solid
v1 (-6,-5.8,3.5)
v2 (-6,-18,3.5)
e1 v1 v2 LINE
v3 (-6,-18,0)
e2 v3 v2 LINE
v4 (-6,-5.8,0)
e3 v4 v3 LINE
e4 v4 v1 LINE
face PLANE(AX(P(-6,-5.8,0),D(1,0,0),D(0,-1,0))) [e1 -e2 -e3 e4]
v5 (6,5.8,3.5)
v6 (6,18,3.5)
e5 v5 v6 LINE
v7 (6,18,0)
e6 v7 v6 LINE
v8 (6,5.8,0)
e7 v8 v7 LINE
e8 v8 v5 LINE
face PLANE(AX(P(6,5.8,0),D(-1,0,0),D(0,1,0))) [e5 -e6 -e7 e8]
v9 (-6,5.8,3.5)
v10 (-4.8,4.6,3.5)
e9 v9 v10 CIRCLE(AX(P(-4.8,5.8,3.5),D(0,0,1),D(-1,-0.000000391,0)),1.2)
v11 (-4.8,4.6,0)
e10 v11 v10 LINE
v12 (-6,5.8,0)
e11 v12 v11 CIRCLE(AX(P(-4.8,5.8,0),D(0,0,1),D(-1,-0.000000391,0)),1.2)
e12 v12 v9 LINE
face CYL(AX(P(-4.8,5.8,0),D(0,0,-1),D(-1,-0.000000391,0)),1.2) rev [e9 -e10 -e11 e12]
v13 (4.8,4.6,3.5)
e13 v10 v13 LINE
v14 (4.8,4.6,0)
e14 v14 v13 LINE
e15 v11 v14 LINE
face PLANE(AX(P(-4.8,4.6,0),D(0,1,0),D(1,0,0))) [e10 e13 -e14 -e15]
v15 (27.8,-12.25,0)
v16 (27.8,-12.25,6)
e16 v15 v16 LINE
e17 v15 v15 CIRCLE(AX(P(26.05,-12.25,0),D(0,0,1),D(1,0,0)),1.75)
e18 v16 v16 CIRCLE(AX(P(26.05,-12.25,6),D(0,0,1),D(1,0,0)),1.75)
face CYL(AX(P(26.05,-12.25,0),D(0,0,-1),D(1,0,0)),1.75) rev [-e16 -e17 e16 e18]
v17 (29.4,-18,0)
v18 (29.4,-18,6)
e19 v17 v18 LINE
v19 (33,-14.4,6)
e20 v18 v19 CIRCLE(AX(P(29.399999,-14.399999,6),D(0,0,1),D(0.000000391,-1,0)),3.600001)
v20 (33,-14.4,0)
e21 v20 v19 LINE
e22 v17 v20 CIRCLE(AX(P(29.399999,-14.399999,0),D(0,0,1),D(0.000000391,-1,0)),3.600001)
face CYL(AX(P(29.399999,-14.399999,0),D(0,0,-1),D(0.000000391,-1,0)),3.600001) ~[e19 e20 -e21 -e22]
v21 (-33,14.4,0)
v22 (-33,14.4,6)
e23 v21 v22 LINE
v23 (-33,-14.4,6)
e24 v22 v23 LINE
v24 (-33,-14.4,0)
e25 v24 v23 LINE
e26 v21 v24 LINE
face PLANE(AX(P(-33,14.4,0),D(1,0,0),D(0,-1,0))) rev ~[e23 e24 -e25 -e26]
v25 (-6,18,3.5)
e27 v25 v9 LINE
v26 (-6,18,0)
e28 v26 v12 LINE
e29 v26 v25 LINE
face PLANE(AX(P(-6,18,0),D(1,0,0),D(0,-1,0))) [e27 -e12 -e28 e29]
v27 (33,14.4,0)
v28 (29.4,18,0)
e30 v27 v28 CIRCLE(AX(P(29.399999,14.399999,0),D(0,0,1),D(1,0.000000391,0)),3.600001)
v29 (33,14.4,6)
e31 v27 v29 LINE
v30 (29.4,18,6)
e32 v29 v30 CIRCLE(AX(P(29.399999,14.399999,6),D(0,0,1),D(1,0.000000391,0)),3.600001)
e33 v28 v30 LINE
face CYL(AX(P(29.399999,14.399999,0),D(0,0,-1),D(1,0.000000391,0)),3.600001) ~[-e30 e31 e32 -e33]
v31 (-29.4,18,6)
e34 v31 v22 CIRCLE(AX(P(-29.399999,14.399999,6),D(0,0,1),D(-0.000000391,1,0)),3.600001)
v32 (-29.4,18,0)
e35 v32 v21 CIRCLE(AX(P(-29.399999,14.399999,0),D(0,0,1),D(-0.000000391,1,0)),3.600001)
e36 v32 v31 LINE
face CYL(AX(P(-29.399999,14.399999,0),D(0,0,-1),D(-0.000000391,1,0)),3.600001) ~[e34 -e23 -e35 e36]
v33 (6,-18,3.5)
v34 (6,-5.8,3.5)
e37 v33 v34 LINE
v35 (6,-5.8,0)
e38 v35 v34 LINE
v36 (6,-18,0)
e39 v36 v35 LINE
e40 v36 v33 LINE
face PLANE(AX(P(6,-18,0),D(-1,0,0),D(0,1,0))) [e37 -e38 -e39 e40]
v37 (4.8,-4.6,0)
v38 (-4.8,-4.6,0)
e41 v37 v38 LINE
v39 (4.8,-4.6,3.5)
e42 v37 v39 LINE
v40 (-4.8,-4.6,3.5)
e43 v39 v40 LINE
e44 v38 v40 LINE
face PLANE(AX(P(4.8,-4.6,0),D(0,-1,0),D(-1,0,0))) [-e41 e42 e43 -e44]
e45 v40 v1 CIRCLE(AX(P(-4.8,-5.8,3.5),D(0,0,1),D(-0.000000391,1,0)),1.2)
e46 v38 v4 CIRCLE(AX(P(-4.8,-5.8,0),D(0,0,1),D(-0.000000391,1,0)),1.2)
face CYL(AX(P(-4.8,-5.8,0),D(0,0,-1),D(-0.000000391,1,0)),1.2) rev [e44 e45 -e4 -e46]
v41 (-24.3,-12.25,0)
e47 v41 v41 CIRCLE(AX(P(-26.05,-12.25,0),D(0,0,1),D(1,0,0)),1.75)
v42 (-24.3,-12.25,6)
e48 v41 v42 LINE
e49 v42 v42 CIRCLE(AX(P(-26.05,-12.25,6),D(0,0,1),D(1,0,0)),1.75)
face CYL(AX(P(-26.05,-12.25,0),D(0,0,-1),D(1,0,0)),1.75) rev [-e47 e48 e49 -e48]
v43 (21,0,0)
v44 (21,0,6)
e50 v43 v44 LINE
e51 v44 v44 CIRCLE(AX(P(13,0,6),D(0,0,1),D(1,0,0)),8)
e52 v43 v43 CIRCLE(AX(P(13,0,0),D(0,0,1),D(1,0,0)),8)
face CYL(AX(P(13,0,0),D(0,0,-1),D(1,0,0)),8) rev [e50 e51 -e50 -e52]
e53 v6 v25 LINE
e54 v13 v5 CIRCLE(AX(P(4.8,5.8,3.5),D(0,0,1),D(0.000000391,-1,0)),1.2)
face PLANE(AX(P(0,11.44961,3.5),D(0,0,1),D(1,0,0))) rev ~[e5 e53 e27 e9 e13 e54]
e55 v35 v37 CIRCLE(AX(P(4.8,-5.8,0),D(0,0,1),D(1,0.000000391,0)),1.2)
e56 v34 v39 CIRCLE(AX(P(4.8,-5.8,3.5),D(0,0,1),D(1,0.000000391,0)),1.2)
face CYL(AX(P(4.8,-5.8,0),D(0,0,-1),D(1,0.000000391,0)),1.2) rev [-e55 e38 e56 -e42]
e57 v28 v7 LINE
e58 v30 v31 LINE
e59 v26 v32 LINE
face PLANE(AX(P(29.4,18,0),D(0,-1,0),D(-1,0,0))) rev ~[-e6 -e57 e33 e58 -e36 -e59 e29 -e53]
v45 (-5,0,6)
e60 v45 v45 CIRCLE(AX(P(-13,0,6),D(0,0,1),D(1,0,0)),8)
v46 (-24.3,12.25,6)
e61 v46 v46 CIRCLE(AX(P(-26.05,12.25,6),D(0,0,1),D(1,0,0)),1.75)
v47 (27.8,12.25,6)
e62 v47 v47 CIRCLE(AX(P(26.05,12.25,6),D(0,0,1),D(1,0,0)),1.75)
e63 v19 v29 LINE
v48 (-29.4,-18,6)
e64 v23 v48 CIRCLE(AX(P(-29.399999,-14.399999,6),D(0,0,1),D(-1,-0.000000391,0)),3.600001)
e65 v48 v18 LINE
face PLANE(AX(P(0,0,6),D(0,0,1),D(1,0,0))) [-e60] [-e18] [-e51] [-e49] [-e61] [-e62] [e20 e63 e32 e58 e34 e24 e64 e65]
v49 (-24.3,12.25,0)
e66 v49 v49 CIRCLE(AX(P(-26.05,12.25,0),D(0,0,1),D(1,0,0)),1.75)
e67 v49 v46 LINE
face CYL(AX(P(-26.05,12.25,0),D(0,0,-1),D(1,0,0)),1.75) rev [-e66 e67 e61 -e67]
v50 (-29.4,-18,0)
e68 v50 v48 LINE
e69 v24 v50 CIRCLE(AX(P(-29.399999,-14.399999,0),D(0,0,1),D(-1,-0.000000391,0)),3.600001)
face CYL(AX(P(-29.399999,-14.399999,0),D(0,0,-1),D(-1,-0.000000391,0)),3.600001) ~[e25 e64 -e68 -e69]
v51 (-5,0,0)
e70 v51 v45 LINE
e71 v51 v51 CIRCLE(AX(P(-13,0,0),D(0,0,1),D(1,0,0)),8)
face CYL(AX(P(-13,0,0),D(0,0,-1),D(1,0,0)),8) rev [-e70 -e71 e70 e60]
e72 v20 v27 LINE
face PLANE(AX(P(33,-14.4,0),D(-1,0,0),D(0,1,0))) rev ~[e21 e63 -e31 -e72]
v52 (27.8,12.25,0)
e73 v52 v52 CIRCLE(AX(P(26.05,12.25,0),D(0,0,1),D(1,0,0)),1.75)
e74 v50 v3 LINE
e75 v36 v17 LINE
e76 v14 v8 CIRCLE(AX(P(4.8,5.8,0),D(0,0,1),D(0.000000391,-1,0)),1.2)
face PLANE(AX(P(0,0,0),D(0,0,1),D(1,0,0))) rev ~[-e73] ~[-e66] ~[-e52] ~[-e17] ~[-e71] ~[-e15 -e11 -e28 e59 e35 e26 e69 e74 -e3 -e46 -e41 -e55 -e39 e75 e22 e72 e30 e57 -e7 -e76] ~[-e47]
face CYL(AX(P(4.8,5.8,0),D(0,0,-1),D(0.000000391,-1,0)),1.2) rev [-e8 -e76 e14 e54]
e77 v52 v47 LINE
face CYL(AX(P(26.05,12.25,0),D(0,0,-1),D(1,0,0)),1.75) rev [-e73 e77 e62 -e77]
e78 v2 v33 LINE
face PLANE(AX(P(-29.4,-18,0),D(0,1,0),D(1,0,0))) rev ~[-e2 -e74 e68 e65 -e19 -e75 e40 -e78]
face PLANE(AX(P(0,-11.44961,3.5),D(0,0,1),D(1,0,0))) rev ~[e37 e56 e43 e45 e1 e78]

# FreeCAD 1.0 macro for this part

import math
import FreeCAD as App
import Part
import Sketcher
from FreeCAD import Vector

doc = App.newDocument("Part")
body = doc.addObject("PartDesign::Body", "Body")

# Sketch on XY plane
sketch1 = body.newObject("Sketcher::SketchObject", "Sketch")
sketch1.AttachmentSupport = (doc.getObject("XY_Plane"), [""])
sketch1.MapMode = "FlatFace"
sketch1.addGeometry([
    Part.ArcOfCircle(Part.Circle(Vector(29.4, 14.4, 0), Vector(0, 0, 1), 3.6), math.radians(0), math.radians(90)),  # 0
    Part.LineSegment(Vector(29.4, 18, 0), Vector(-29.4, 18, 0)),  # 1
    Part.ArcOfCircle(Part.Circle(Vector(-29.4, 14.4, 0), Vector(0, 0, 1), 3.6), math.radians(90), math.radians(180)),  # 2
    Part.LineSegment(Vector(-33, 14.4, 0), Vector(-33, -14.4, 0)),  # 3
    Part.ArcOfCircle(Part.Circle(Vector(-29.4, -14.4, 0), Vector(0, 0, 1), 3.6), math.radians(-180), math.radians(-90)),  # 4
    Part.LineSegment(Vector(-29.4, -18, 0), Vector(29.4, -18, 0)),  # 5
    Part.ArcOfCircle(Part.Circle(Vector(29.4, -14.4, 0), Vector(0, 0, 1), 3.6), math.radians(-90), math.radians(0)),  # 6
    Part.LineSegment(Vector(33, -14.4, 0), Vector(33, 14.4, 0)),  # 7
    Part.Circle(Vector(-26.1, -12.2, 0), Vector(0, 0, 1), 1.8),  # 8
    Part.Circle(Vector(26.1, -12.2, 0), Vector(0, 0, 1), 1.8),  # 9
    Part.Circle(Vector(-13, 0, 0), Vector(0, 0, 1), 8),  # 10
    Part.Circle(Vector(-26.1, 12.2, 0), Vector(0, 0, 1), 1.8),  # 11
    Part.Circle(Vector(13, 0, 0), Vector(0, 0, 1), 8),  # 12
    Part.Circle(Vector(26.1, 12.2, 0), Vector(0, 0, 1), 1.8),  # 13
], False)
sketch1.addConstraint([
    Sketcher.Constraint("Tangent", 0, 2, 1, 1),
    Sketcher.Constraint("Tangent", 1, 2, 2, 1),
    Sketcher.Constraint("Tangent", 2, 2, 3, 1),
    Sketcher.Constraint("Tangent", 3, 2, 4, 1),
    Sketcher.Constraint("Tangent", 4, 2, 5, 1),
    Sketcher.Constraint("Tangent", 5, 2, 6, 1),
    Sketcher.Constraint("Tangent", 6, 2, 7, 1),
    Sketcher.Constraint("Tangent", 7, 2, 0, 1),
    Sketcher.Constraint("Horizontal", 1),
    Sketcher.Constraint("Vertical", 3),
    Sketcher.Constraint("Horizontal", 5),
    Sketcher.Constraint("Vertical", 7),
    Sketcher.Constraint("Equal", 0, 2),
    Sketcher.Constraint("Equal", 2, 4),
    Sketcher.Constraint("Equal", 4, 6),
    Sketcher.Constraint("Equal", 8, 9),
    Sketcher.Constraint("Equal", 9, 11),
    Sketcher.Constraint("Equal", 10, 12),
    Sketcher.Constraint("Equal", 11, 13),
    Sketcher.Constraint("Symmetric", 0, 3, 4, 3, -1, 1),
    Sketcher.Constraint("Symmetric", 9, 3, 11, 3, -1, 1),
    Sketcher.Constraint("Symmetric", 10, 3, 12, 3, -1, 1),
    Sketcher.Constraint("Symmetric", 8, 3, 13, 3, -1, 1),
    Sketcher.Constraint("Symmetric", 8, 3, 9, 3, -2),
    Sketcher.Constraint("PointOnObject", 10, 3, -1),
    Sketcher.Constraint("Diameter", 10, 16.0),
    Sketcher.Constraint("Diameter", 8, 3.5),
    Sketcher.Constraint("Radius", 0, 3.600001),
    Sketcher.Constraint("DistanceX", 1, 2, 1, 1, 58.8),
    Sketcher.Constraint("DistanceY", 3, 2, 3, 1, 28.8),
    Sketcher.Constraint("DistanceX", 10, 3, -1, 1, 13.0),
    Sketcher.Constraint("DistanceX", 8, 3, 9, 3, 52.1),
    Sketcher.Constraint("DistanceY", 8, 3, 11, 3, 24.5),
])
pad1 = body.newObject("PartDesign::Pad", "Pad")
pad1.Profile = sketch1
pad1.Length = 6

# Sketch on XY plane
sketch2 = body.newObject("Sketcher::SketchObject", "Sketch001")
sketch2.AttachmentSupport = (doc.getObject("XY_Plane"), [""])
sketch2.MapMode = "FlatFace"
sketch2.addGeometry([
    Part.LineSegment(Vector(-6, -18, 0), Vector(6, -18, 0)),  # 0
    Part.LineSegment(Vector(6, -18, 0), Vector(6, -5.8, 0)),  # 1
    Part.ArcOfCircle(Part.Circle(Vector(4.8, -5.8, 0), Vector(0, 0, 1), 1.2), math.radians(0), math.radians(90)),  # 2
    Part.LineSegment(Vector(4.8, -4.6, 0), Vector(-4.8, -4.6, 0)),  # 3
    Part.ArcOfCircle(Part.Circle(Vector(-4.8, -5.8, 0), Vector(0, 0, 1), 1.2), math.radians(90), math.radians(180)),  # 4
    Part.LineSegment(Vector(-6, -5.8, 0), Vector(-6, -18, 0)),  # 5
    Part.ArcOfCircle(Part.Circle(Vector(4.8, 5.8, 0), Vector(0, 0, 1), 1.2), math.radians(-90), math.radians(0)),  # 6
    Part.LineSegment(Vector(6, 5.8, 0), Vector(6, 18, 0)),  # 7
    Part.LineSegment(Vector(6, 18, 0), Vector(-6, 18, 0)),  # 8
    Part.LineSegment(Vector(-6, 18, 0), Vector(-6, 5.8, 0)),  # 9
    Part.ArcOfCircle(Part.Circle(Vector(-4.8, 5.8, 0), Vector(0, 0, 1), 1.2), math.radians(-180), math.radians(-90)),  # 10
    Part.LineSegment(Vector(-4.8, 4.6, 0), Vector(4.8, 4.6, 0)),  # 11
], False)
sketch2.addConstraint([
    Sketcher.Constraint("Coincident", 0, 2, 1, 1),
    Sketcher.Constraint("Tangent", 1, 2, 2, 1),
    Sketcher.Constraint("Tangent", 2, 2, 3, 1),
    Sketcher.Constraint("Tangent", 3, 2, 4, 1),
    Sketcher.Constraint("Tangent", 4, 2, 5, 1),
    Sketcher.Constraint("Coincident", 5, 2, 0, 1),
    Sketcher.Constraint("Tangent", 6, 2, 7, 1),
    Sketcher.Constraint("Coincident", 7, 2, 8, 1),
    Sketcher.Constraint("Coincident", 8, 2, 9, 1),
    Sketcher.Constraint("Tangent", 9, 2, 10, 1),
    Sketcher.Constraint("Tangent", 10, 2, 11, 1),
    Sketcher.Constraint("Tangent", 11, 2, 6, 1),
    Sketcher.Constraint("Horizontal", 0),
    Sketcher.Constraint("Vertical", 1),
    Sketcher.Constraint("Horizontal", 3),
    Sketcher.Constraint("Vertical", 5),
    Sketcher.Constraint("Vertical", 7),
    Sketcher.Constraint("Horizontal", 8),
    Sketcher.Constraint("Vertical", 9),
    Sketcher.Constraint("Horizontal", 11),
    Sketcher.Constraint("Equal", 2, 4),
    Sketcher.Constraint("Equal", 4, 6),
    Sketcher.Constraint("Equal", 6, 10),
    Sketcher.Constraint("Symmetric", 4, 3, 6, 3, -1, 1),
    Sketcher.Constraint("Symmetric", 0, 2, 8, 2, -1, 1),
    Sketcher.Constraint("Vertical", 2, 3, 6, 3),
    Sketcher.Constraint("Radius", 2, 1.2),
    Sketcher.Constraint("DistanceX", 0, 1, 0, 2, 12.0),
    Sketcher.Constraint("DistanceY", 1, 1, 1, 2, 12.2),
    Sketcher.Constraint("DistanceY", 0, 2, -1, 1, 18.0),
])
pocket1 = body.newObject("PartDesign::Pocket", "Pocket")
pocket1.Profile = sketch2
pocket1.Length = 3.5
pocket1.Reversed = True

doc.recompute()
